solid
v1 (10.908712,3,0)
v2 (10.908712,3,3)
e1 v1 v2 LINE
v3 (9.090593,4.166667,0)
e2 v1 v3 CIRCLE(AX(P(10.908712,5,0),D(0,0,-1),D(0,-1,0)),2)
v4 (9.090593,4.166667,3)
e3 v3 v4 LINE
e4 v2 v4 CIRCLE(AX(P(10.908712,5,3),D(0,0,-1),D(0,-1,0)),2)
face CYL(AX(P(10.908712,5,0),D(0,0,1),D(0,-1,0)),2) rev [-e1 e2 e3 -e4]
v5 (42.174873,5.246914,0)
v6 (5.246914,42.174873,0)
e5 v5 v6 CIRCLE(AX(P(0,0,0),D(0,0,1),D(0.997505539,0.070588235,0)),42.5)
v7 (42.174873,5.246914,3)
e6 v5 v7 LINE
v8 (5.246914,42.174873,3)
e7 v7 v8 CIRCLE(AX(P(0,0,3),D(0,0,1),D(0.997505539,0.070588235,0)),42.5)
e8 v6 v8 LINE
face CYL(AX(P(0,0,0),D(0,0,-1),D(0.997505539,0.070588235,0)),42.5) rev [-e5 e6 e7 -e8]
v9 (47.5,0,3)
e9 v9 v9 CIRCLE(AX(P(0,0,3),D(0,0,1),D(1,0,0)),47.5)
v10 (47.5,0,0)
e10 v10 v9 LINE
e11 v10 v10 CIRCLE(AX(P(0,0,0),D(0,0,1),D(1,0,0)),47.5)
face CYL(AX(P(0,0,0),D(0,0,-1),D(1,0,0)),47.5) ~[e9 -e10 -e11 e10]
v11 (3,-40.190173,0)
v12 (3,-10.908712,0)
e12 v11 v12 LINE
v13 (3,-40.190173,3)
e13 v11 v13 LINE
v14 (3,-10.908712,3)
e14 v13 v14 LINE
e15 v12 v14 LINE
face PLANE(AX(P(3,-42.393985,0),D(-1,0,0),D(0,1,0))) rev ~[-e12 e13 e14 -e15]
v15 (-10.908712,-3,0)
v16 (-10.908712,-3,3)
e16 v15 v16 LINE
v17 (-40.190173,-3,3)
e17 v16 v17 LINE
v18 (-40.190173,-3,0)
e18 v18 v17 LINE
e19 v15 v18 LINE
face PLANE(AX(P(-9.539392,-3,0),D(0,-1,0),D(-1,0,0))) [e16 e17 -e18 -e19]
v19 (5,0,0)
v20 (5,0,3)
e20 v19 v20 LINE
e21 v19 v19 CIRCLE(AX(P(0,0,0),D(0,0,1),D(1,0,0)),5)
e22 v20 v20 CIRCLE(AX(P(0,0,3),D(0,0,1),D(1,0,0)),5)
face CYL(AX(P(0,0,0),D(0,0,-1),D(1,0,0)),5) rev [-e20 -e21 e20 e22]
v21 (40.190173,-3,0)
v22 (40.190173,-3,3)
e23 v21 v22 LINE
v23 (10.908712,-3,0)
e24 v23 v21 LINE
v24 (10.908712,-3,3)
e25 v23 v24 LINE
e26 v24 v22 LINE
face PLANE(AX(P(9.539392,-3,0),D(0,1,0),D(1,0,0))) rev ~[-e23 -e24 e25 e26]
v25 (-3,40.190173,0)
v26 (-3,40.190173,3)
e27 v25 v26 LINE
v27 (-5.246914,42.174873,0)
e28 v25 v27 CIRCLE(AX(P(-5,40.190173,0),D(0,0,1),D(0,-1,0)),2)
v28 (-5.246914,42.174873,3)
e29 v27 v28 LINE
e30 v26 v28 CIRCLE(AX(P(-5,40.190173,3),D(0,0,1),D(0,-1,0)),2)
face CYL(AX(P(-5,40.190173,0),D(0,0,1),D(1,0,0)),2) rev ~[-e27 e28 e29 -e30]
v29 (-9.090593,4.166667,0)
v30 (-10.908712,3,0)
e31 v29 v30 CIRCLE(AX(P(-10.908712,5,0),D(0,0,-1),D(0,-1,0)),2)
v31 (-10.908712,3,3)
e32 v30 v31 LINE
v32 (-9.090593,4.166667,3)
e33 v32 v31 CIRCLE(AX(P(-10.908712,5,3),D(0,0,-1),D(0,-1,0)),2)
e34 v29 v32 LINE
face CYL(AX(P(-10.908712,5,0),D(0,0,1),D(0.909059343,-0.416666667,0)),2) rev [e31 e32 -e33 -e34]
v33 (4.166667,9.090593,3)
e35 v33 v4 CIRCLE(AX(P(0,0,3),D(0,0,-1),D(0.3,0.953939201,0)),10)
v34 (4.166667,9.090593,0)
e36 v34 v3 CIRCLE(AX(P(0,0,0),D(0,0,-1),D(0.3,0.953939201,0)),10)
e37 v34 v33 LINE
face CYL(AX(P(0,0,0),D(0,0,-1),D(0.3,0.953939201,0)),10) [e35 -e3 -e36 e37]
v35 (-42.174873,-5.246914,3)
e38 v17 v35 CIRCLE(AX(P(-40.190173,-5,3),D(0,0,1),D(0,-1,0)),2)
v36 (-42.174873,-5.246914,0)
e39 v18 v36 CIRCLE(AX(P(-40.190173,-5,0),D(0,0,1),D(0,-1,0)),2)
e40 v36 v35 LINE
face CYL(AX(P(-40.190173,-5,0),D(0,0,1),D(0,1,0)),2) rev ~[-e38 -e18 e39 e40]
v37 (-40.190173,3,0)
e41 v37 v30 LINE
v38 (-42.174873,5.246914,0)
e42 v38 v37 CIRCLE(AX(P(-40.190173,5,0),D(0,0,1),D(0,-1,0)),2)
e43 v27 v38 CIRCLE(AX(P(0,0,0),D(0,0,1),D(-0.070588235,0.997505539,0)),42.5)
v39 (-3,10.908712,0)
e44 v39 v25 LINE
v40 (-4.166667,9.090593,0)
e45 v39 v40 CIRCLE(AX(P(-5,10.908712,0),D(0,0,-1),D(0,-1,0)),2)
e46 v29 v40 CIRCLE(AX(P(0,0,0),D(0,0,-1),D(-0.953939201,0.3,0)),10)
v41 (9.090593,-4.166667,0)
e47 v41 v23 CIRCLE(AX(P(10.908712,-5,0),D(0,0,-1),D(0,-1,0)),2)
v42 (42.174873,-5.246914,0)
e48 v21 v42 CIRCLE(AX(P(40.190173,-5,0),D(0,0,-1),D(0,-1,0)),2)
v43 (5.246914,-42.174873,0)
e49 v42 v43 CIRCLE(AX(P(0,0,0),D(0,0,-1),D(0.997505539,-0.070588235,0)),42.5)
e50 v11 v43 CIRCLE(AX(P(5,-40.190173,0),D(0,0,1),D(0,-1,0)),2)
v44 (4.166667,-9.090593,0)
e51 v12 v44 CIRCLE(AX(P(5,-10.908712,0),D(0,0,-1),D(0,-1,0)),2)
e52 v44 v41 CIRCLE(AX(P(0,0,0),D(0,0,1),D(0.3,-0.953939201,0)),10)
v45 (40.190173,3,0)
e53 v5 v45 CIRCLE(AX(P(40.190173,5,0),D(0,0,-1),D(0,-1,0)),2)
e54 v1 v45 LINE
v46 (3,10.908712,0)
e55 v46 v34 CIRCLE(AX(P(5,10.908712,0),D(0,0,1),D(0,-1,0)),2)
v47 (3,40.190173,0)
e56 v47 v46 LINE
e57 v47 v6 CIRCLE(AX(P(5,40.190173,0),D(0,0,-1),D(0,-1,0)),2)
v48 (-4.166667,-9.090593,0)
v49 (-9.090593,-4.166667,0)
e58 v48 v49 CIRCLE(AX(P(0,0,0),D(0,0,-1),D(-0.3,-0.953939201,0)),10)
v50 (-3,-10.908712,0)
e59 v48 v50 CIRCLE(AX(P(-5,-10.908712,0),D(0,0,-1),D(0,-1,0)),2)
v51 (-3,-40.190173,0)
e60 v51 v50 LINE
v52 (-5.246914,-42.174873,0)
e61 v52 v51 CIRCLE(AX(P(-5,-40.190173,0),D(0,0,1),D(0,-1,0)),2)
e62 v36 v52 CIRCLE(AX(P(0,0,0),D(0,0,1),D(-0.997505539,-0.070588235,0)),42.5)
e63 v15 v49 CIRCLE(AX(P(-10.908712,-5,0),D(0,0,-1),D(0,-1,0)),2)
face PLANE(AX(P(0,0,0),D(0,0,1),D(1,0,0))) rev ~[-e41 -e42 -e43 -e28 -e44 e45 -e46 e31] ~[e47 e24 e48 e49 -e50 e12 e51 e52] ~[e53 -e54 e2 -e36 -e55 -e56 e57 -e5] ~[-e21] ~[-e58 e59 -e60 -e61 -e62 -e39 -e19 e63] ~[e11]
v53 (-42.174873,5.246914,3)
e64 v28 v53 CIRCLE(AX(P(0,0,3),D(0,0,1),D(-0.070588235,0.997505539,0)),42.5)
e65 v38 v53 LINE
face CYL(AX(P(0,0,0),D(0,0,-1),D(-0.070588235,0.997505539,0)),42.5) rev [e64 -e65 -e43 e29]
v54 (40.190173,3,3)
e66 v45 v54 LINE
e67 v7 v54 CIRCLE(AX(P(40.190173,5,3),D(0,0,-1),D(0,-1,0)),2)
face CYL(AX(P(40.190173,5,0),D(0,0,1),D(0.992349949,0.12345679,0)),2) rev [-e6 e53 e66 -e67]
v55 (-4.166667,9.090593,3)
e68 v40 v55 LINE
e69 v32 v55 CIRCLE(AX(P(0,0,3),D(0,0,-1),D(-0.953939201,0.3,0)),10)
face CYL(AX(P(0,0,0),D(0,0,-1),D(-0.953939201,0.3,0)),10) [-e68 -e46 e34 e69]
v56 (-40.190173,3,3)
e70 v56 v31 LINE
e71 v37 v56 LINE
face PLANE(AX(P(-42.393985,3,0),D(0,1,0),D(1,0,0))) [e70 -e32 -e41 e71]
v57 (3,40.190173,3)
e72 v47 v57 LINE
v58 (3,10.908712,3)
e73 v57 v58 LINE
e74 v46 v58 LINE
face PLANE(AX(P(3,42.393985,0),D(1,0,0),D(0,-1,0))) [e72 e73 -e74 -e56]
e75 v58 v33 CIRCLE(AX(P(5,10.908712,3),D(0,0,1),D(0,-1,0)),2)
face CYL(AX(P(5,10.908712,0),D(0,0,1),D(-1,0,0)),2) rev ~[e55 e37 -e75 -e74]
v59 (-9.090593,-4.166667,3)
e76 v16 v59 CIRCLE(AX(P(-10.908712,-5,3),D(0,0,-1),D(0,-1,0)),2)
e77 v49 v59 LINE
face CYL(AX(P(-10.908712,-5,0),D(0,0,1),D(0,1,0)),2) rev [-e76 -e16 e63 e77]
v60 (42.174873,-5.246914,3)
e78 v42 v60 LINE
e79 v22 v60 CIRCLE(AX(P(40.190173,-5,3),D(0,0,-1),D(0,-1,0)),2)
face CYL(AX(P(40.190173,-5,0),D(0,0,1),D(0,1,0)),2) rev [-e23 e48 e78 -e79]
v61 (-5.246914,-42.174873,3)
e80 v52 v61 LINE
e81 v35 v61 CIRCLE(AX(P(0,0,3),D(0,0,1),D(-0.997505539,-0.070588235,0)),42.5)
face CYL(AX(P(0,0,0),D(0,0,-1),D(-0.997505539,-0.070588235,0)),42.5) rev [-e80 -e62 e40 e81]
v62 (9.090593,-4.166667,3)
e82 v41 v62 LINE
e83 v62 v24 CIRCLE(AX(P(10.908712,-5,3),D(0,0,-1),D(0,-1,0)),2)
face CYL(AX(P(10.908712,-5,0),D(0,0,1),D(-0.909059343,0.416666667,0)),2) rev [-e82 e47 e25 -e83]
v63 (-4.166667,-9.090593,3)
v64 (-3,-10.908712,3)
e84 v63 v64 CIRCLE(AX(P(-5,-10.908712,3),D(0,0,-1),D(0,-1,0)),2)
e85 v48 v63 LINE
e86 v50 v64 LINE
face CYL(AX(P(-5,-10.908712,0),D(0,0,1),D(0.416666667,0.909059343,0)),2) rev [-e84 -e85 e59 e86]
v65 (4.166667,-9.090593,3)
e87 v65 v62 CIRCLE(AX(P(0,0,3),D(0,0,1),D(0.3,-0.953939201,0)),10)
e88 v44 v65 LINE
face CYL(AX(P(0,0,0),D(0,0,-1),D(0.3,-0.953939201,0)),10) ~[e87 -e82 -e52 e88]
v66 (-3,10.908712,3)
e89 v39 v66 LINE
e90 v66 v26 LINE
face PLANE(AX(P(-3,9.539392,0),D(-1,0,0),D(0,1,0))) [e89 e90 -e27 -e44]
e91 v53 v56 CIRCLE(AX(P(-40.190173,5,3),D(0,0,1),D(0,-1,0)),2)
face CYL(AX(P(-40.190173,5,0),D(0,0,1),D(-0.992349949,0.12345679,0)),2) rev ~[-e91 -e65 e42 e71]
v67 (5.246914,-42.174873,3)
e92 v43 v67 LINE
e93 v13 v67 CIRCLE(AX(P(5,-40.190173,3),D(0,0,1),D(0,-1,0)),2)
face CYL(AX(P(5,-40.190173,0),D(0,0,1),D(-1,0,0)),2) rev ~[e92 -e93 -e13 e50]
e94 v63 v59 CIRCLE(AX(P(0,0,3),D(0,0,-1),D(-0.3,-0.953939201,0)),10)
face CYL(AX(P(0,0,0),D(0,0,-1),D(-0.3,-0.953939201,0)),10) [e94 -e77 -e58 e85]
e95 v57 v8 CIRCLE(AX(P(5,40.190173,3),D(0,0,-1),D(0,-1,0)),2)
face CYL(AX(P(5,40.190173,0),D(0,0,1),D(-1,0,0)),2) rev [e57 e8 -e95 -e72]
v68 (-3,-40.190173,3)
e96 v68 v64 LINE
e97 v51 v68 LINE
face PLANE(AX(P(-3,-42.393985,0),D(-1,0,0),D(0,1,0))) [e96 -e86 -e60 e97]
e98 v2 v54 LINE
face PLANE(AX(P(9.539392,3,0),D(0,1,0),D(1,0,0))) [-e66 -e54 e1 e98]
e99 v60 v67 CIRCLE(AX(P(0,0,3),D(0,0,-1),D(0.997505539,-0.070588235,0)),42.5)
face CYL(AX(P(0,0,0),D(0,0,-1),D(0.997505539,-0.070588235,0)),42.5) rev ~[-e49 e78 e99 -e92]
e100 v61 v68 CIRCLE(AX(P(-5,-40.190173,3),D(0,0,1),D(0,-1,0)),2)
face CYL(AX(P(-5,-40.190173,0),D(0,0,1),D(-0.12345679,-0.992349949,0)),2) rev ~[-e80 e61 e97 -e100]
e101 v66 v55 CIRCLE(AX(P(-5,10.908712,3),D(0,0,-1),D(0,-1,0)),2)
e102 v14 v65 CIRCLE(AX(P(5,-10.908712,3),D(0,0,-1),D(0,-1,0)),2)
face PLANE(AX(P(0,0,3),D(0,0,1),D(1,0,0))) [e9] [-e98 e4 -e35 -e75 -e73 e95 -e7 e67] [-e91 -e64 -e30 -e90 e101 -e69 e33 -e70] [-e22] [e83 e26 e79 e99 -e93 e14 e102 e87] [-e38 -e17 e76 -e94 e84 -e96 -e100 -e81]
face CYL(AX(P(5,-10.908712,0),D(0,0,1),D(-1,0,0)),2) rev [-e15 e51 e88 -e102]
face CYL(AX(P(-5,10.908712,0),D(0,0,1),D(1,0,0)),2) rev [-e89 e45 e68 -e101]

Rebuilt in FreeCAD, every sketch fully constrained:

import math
import FreeCAD as App
import Part
import Sketcher
Q = App.Units.Quantity


def edges_at(feature, points):
    """Names of the edges that pass closest to the given points."""
    edges = feature.Shape.Edges
    near = lambda p: min(range(len(edges)), key=lambda i: edges[i].distToShape(Part.Vertex(*p))[0])
    return sorted({f"Edge{near(p) + 1}" for p in points})

doc = App.newDocument("Part")
params = doc.addObject("Spreadsheet::Sheet", "Params")
for row, (alias, value) in enumerate([
    ("sketch1_diameter", "95 mm"),
    ("sketch1_diameter2", "10 mm"),
    ("sketch1_radius", "10 mm"),
    ("sketch1_radius2", "42.5 mm"),
    ("pad1_length", "3 mm"),
    ("fillet_radius", "2 mm"),
    ("fillet2_radius", "2 mm"),
    ("fillet3_radius", "2 mm"),
], start=1):
    params.set(f"A{row}", alias)
    params.set(f"B{row}", "=" + value)
    params.setAlias(f"B{row}", alias)

body = doc.addObject("PartDesign::Body", "Body")

# Sketch on XY plane
sketch1 = doc.addObject("Sketcher::SketchObject", "Sketch")
body.addObject(sketch1)
sketch1.AttachmentSupport = (doc.XY_Plane, [""])
sketch1.MapMode = "FlatFace"
sketch1.addGeometry(Part.Circle(App.Vector(0, 0, 0), App.Vector(0, 0, 1), 47.5), False)
sketch1.addGeometry(Part.LineSegment(App.Vector(-42.393985, -3, 0), App.Vector(-9.539392, -3, 0)), False)
sketch1.addGeometry(Part.ArcOfCircle(Part.Circle(App.Vector(0, 0, 0), App.Vector(0, 0, 1), 10), math.radians(-162.542397), math.radians(-107.457603)), False)
sketch1.addGeometry(Part.LineSegment(App.Vector(-3, -9.539392, 0), App.Vector(-3, -42.393985, 0)), False)
sketch1.addGeometry(Part.ArcOfCircle(Part.Circle(App.Vector(0, 0, 0), App.Vector(0, 0, 1), 42.5), math.radians(-175.952226), math.radians(-94.047774)), False)
sketch1.addGeometry(Part.Circle(App.Vector(0, 0, 0), App.Vector(0, 0, 1), 5), False)
sketch1.addGeometry(Part.ArcOfCircle(Part.Circle(App.Vector(0, 0, 0), App.Vector(0, 0, 1), 10), math.radians(-72.542397), math.radians(-17.457603)), False)
sketch1.addGeometry(Part.LineSegment(App.Vector(9.539392, -3, 0), App.Vector(42.393985, -3, 0)), False)
sketch1.addGeometry(Part.ArcOfCircle(Part.Circle(App.Vector(0, 0, 0), App.Vector(0, 0, 1), 42.5), math.radians(-85.952226), math.radians(-4.047774)), False)
sketch1.addGeometry(Part.LineSegment(App.Vector(3, -42.393985, 0), App.Vector(3, -9.539392, 0)), False)
sketch1.addGeometry(Part.LineSegment(App.Vector(-3, 42.393985, 0), App.Vector(-3, 9.539392, 0)), False)
sketch1.addGeometry(Part.ArcOfCircle(Part.Circle(App.Vector(0, 0, 0), App.Vector(0, 0, 1), 10), math.radians(107.457603), math.radians(162.542397)), False)
sketch1.addGeometry(Part.LineSegment(App.Vector(-9.539392, 3, 0), App.Vector(-42.393985, 3, 0)), False)
sketch1.addGeometry(Part.ArcOfCircle(Part.Circle(App.Vector(0, 0, 0), App.Vector(0, 0, 1), 42.5), math.radians(94.047774), math.radians(175.952226)), False)
sketch1.addGeometry(Part.LineSegment(App.Vector(3, 9.539392, 0), App.Vector(3, 42.393985, 0)), False)
sketch1.addGeometry(Part.ArcOfCircle(Part.Circle(App.Vector(0, 0, 0), App.Vector(0, 0, 1), 42.5), math.radians(4.047774), math.radians(85.952226)), False)
sketch1.addGeometry(Part.LineSegment(App.Vector(42.393985, 3, 0), App.Vector(9.539392, 3, 0)), False)
sketch1.addGeometry(Part.ArcOfCircle(Part.Circle(App.Vector(0, 0, 0), App.Vector(0, 0, 1), 10), math.radians(17.457603), math.radians(72.542397)), False)
sketch1.addConstraint(Sketcher.Constraint("Coincident", 1, 2, 2, 1))
sketch1.addConstraint(Sketcher.Constraint("Coincident", 2, 2, 3, 1))
sketch1.addConstraint(Sketcher.Constraint("Coincident", 3, 2, 4, 2))
sketch1.addConstraint(Sketcher.Constraint("Coincident", 4, 1, 1, 1))
sketch1.addConstraint(Sketcher.Constraint("Coincident", 6, 2, 7, 1))
sketch1.addConstraint(Sketcher.Constraint("Coincident", 7, 2, 8, 2))
sketch1.addConstraint(Sketcher.Constraint("Coincident", 8, 1, 9, 1))
sketch1.addConstraint(Sketcher.Constraint("Coincident", 9, 2, 6, 1))
sketch1.addConstraint(Sketcher.Constraint("Coincident", 10, 2, 11, 1))
sketch1.addConstraint(Sketcher.Constraint("Coincident", 11, 2, 12, 1))
sketch1.addConstraint(Sketcher.Constraint("Coincident", 12, 2, 13, 2))
sketch1.addConstraint(Sketcher.Constraint("Coincident", 13, 1, 10, 1))
sketch1.addConstraint(Sketcher.Constraint("Coincident", 14, 2, 15, 2))
sketch1.addConstraint(Sketcher.Constraint("Coincident", 15, 1, 16, 1))
sketch1.addConstraint(Sketcher.Constraint("Coincident", 16, 2, 17, 1))
sketch1.addConstraint(Sketcher.Constraint("Coincident", 17, 2, 14, 1))
sketch1.addConstraint(Sketcher.Constraint("Horizontal", 1))
sketch1.addConstraint(Sketcher.Constraint("Vertical", 3))
sketch1.addConstraint(Sketcher.Constraint("Horizontal", 7))
sketch1.addConstraint(Sketcher.Constraint("Vertical", 9))
sketch1.addConstraint(Sketcher.Constraint("Vertical", 10))
sketch1.addConstraint(Sketcher.Constraint("Horizontal", 12))
sketch1.addConstraint(Sketcher.Constraint("Vertical", 14))
sketch1.addConstraint(Sketcher.Constraint("Horizontal", 16))
sketch1.addConstraint(Sketcher.Constraint("Coincident", 0, 3, -1, 1))
sketch1.addConstraint(Sketcher.Constraint("Coincident", 2, 3, -1, 1))
sketch1.addConstraint(Sketcher.Constraint("Coincident", 4, 3, -1, 1))
sketch1.addConstraint(Sketcher.Constraint("Coincident", 5, 3, -1, 1))
sketch1.addConstraint(Sketcher.Constraint("Coincident", 6, 3, -1, 1))
sketch1.addConstraint(Sketcher.Constraint("Coincident", 8, 3, -1, 1))
sketch1.addConstraint(Sketcher.Constraint("Coincident", 11, 3, -1, 1))
sketch1.addConstraint(Sketcher.Constraint("Coincident", 13, 3, -1, 1))
sketch1.addConstraint(Sketcher.Constraint("Coincident", 15, 3, -1, 1))
sketch1.addConstraint(Sketcher.Constraint("Coincident", 17, 3, -1, 1))
sketch1.addConstraint(Sketcher.Constraint("Equal", 2, 6))
sketch1.addConstraint(Sketcher.Constraint("Equal", 4, 8))
sketch1.addConstraint(Sketcher.Constraint("Equal", 6, 11))
sketch1.addConstraint(Sketcher.Constraint("Equal", 8, 13))
sketch1.addConstraint(Sketcher.Constraint("Equal", 13, 15))
sketch1.addConstraint(Sketcher.Constraint("Equal", 11, 17))
sketch1.addConstraint(Sketcher.Constraint("Horizontal", 4, 1, 6, 2))
sketch1.addConstraint(Sketcher.Constraint("Horizontal", 3, 2, 8, 1))
sketch1.addConstraint(Sketcher.Constraint("Horizontal", 13, 1, 14, 2))
sketch1.addConstraint(Sketcher.Constraint("Horizontal", 12, 2, 15, 1))
sketch1.addConstraint(Sketcher.Constraint("Vertical", 3, 2, 10, 2))
sketch1.addConstraint(Sketcher.Constraint("Vertical", 1, 2, 11, 2))
sketch1.addConstraint(Sketcher.Constraint("Equal", 16, 3))
sketch1.addConstraint(Sketcher.Constraint("Diameter", 0, Q("95 mm")))
sketch1.addConstraint(Sketcher.Constraint("Diameter", 5, Q("10 mm")))
sketch1.addConstraint(Sketcher.Constraint("Radius", 2, Q("10 mm")))
sketch1.addConstraint(Sketcher.Constraint("Radius", 4, Q("42.5 mm")))
sketch1.addConstraint(Sketcher.Constraint("DistanceY", 1, 2, -1, 1, Q("3 mm")))
sketch1.setExpression("Constraints[47]", "Params.sketch1_diameter")
sketch1.setExpression("Constraints[48]", "Params.sketch1_diameter2")
sketch1.setExpression("Constraints[49]", "Params.sketch1_radius")
sketch1.setExpression("Constraints[50]", "Params.sketch1_radius2")
pad1 = doc.addObject("PartDesign::Pad", "Pad")
body.addObject(pad1)
pad1.Profile = sketch1
pad1.setExpression("Length", "Params.pad1_length")
doc.recompute()

fillet = doc.addObject("PartDesign::Fillet", "Fillet")
body.addObject(fillet)
fillet.Base = (pad1, edges_at(pad1, [(3, 42.394, 1.5)]))
fillet.setExpression("Radius", "Params.fillet_radius")
doc.recompute()

fillet2 = doc.addObject("PartDesign::Fillet", "Fillet001")
body.addObject(fillet2)
fillet2.Base = (fillet, edges_at(fillet, [
    (42.394, 3, 1.5),
    (3, -42.394, 1.5),
    (42.394, -3, 1.5),
    (-42.394, -3, 1.5),
    (-3, -42.394, 1.5),
    (-3, 42.394, 1.5),
    (-42.394, 3, 1.5),
]))
fillet2.setExpression("Radius", "Params.fillet2_radius")
doc.recompute()

fillet3 = doc.addObject("PartDesign::Fillet", "Fillet002")
body.addObject(fillet3)
fillet3.Base = (fillet2, edges_at(fillet2, [
    (3, 9.539, 1.5),
    (9.539, 3, 1.5),
    (9.539, -3, 1.5),
    (3, -9.539, 1.5),
    (-3, -9.539, 1.5),
    (-9.539, -3, 1.5),
    (-9.539, 3, 1.5),
    (-3, 9.539, 1.5),
]))
fillet3.setExpression("Radius", "Params.fillet3_radius")

doc.recompute()
